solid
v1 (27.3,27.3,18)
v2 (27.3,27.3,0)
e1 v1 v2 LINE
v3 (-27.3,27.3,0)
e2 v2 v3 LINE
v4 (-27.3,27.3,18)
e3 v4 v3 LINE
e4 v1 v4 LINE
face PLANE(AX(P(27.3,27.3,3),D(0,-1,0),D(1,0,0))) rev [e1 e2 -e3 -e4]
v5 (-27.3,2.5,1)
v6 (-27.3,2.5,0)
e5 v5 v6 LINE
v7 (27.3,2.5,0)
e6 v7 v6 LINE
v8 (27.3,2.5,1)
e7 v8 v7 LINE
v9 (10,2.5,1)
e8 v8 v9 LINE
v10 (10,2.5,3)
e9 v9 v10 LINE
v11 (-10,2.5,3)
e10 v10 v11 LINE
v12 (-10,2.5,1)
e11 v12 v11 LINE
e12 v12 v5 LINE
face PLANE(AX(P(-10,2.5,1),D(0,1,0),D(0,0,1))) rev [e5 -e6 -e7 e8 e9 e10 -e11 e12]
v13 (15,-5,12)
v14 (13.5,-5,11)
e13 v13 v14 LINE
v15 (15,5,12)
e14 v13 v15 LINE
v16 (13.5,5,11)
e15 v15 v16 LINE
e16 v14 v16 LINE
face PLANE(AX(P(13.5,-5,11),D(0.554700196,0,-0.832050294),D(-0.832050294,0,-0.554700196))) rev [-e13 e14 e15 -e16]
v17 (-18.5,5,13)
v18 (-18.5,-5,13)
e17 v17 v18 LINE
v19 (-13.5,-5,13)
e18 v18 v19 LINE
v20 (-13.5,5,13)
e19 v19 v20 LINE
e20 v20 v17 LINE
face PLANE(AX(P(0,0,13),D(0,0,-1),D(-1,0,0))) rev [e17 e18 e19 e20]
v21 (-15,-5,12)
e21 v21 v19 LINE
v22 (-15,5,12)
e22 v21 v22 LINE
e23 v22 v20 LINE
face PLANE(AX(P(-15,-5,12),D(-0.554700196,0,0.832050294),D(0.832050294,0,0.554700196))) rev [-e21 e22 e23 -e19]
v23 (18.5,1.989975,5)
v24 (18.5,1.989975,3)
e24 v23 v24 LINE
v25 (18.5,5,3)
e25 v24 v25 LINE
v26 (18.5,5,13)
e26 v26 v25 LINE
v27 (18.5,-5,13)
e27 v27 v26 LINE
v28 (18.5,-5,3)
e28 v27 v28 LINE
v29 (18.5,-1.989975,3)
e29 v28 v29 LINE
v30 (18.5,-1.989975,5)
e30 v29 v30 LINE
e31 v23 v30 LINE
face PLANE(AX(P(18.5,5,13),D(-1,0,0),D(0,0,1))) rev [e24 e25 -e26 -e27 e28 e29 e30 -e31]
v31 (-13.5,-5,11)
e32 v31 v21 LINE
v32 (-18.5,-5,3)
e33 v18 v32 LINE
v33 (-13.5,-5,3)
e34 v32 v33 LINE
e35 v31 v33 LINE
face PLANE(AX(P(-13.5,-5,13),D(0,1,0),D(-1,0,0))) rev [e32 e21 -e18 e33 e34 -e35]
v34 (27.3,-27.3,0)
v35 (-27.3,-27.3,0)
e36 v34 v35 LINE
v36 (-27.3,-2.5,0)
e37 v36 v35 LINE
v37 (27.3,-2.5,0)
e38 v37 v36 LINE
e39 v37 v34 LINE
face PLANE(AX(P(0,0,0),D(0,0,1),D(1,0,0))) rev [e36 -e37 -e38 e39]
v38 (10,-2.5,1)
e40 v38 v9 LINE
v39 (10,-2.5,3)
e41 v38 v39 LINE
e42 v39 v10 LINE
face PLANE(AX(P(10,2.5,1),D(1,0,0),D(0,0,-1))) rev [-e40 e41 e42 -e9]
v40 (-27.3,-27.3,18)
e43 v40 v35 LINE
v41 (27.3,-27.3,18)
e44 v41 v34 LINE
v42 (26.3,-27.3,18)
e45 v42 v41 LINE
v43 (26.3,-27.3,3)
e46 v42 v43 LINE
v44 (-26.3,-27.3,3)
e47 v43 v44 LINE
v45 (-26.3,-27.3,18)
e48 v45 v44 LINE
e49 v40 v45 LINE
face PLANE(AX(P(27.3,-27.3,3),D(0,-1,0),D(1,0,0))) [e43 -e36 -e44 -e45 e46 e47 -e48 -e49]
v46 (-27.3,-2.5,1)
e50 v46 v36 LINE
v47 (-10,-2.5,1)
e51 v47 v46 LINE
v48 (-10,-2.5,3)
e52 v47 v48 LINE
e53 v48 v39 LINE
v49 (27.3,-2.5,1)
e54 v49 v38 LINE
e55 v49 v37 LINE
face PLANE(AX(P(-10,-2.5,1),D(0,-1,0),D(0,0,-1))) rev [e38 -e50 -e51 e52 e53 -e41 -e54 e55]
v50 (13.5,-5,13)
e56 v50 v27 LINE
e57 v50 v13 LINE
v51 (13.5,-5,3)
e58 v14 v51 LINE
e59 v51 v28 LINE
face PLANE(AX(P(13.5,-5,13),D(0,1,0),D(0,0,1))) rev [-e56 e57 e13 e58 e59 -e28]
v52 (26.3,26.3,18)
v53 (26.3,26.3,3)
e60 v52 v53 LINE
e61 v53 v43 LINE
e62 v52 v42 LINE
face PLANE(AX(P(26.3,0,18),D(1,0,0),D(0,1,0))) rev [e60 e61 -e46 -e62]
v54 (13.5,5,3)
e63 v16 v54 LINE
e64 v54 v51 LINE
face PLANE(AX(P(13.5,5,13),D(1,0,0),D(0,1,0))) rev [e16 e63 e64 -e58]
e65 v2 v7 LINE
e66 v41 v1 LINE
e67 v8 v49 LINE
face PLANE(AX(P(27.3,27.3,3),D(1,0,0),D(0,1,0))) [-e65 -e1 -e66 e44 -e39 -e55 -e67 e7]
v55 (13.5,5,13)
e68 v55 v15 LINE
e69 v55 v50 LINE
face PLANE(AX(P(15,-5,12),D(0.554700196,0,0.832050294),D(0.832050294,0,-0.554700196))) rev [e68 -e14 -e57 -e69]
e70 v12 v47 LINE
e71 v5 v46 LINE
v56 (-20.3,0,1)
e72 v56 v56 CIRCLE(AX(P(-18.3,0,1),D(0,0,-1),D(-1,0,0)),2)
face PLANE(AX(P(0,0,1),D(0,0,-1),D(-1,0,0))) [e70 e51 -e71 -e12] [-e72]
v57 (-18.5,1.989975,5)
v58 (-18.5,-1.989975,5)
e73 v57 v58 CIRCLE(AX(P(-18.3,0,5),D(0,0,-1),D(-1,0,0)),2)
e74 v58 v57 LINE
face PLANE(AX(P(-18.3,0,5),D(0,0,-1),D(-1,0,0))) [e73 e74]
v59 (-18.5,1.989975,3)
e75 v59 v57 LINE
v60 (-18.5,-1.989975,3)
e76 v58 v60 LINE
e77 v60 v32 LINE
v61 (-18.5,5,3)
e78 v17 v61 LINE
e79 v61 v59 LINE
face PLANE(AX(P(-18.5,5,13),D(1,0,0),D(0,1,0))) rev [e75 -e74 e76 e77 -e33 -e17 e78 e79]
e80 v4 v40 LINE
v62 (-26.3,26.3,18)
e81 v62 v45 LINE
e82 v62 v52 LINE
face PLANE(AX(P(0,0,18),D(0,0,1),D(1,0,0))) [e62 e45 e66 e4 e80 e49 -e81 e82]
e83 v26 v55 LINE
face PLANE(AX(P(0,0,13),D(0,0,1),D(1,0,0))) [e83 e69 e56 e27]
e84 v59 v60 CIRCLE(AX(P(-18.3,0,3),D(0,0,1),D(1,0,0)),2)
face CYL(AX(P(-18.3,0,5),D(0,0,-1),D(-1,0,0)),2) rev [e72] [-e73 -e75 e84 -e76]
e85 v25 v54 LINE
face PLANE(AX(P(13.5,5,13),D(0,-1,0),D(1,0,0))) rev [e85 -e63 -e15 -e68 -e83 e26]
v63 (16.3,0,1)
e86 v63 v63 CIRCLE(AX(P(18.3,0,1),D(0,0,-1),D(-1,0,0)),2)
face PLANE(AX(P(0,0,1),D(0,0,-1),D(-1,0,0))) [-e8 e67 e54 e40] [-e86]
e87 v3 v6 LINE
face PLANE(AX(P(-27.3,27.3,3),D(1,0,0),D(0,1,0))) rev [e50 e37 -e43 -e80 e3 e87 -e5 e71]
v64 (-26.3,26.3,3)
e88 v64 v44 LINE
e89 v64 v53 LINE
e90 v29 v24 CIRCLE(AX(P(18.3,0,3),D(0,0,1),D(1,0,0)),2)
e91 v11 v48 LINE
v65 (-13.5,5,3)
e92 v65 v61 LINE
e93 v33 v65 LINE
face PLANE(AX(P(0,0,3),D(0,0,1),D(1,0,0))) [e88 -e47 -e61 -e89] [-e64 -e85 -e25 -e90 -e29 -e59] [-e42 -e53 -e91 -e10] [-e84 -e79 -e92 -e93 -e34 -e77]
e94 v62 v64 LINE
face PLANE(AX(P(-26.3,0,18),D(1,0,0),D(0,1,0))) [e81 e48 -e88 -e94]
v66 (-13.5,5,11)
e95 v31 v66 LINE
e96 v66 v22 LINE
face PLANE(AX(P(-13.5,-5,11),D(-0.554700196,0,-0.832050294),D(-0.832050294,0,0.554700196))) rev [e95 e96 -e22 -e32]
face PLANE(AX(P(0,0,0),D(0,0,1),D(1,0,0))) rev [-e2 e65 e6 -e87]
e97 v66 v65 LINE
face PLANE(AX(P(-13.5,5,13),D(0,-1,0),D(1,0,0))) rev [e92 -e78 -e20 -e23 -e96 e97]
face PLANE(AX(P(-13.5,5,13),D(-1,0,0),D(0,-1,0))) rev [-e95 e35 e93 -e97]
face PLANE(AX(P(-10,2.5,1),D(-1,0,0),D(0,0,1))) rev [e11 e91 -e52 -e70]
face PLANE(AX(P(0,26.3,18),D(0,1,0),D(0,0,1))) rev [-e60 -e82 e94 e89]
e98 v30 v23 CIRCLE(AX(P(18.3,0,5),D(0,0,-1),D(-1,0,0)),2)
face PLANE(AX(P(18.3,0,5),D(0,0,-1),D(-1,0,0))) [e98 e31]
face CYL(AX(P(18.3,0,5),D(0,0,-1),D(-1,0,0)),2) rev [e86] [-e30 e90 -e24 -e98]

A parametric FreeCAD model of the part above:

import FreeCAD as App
import Part
import Sketcher
from FreeCAD import Vector
Q = App.Units.Quantity


def add_polygon(sketch, points):
    """Adds a closed chain of lines whose ends are joined by coincident constraints."""
    first, n = sketch.GeometryCount, len(points)
    for a, b in zip(points, points[1:] + points[:1]):
        sketch.addGeometry(Part.LineSegment(App.Vector(*a, 0), App.Vector(*b, 0)), False)
    for i in range(n):
        sketch.addConstraint(Sketcher.Constraint("Coincident", first + i, 2, first + (i + 1) % n, 1))

doc = App.newDocument("Part")
body = doc.addObject("PartDesign::Body", "Body")

# Sketch on XY plane
sketch1 = body.newObject("Sketcher::SketchObject", "Sketch")
sketch1.AttachmentSupport = (doc.getObject("XY_Plane"), [""])
sketch1.MapMode = "FlatFace"
add_polygon(sketch1, [(-27, 27), (-27, -27), (27, -27), (27, 27)])  # lines 0-3
sketch1.addConstraint([
    Sketcher.Constraint("Vertical", 0),
    Sketcher.Constraint("Horizontal", 1),
    Sketcher.Constraint("Vertical", 2),
    Sketcher.Constraint("Horizontal", 3),
    Sketcher.Constraint("Symmetric", 0, 2, 2, 2, -1, 1),
    Sketcher.Constraint("Equal", 3, 0),
    Sketcher.Constraint("DistanceX", 1, 1, 1, 2, Q("54.6 mm")),
])
pad1 = body.newObject("PartDesign::Pad", "Pad")
pad1.Profile = sketch1
pad1.Length = 3

# Sketch on XY plane
sketch2 = body.newObject("Sketcher::SketchObject", "Sketch001")
sketch2.AttachmentSupport = (doc.getObject("XY_Plane"), [""])
sketch2.MapMode = "FlatFace"
sketch2.AttachmentOffset = App.Placement(Vector(0, 0, 3), App.Rotation())
add_polygon(sketch2, [(-10, 2), (-10, -2), (10, -2), (10, 2)])  # lines 0-3
sketch2.addConstraint([
    Sketcher.Constraint("Vertical", 0),
    Sketcher.Constraint("Horizontal", 1),
    Sketcher.Constraint("Vertical", 2),
    Sketcher.Constraint("Horizontal", 3),
    Sketcher.Constraint("Symmetric", 0, 2, 2, 2, -1, 1),
    Sketcher.Constraint("DistanceX", 1, 1, 1, 2, Q("20 mm")),
    Sketcher.Constraint("DistanceY", 0, 2, 0, 1, Q("5 mm")),
])
pocket1 = body.newObject("PartDesign::Pocket", "Pocket")
pocket1.Profile = sketch2
pocket1.Length = 2

# Sketch on XY plane
sketch3 = body.newObject("Sketcher::SketchObject", "Sketch002")
sketch3.AttachmentSupport = (doc.getObject("XY_Plane"), [""])
sketch3.MapMode = "FlatFace"
add_polygon(sketch3, [(27, 2), (27, -2), (-27, -2), (-27, 2)])  # lines 0-3
sketch3.addConstraint([
    Sketcher.Constraint("Vertical", 0),
    Sketcher.Constraint("Horizontal", 1),
    Sketcher.Constraint("Vertical", 2),
    Sketcher.Constraint("Horizontal", 3),
    Sketcher.Constraint("Symmetric", 0, 2, 2, 2, -1, 1),
    Sketcher.Constraint("DistanceY", 0, 2, 0, 1, Q("5 mm")),
    Sketcher.Constraint("DistanceX", 1, 2, 1, 1, Q("54.6 mm")),
])
pocket2 = body.newObject("PartDesign::Pocket", "Pocket001")
pocket2.Profile = sketch3
pocket2.Length = 1
pocket2.Reversed = True

# Sketch on XY plane
sketch4 = body.newObject("Sketcher::SketchObject", "Sketch003")
sketch4.AttachmentSupport = (doc.getObject("XY_Plane"), [""])
sketch4.MapMode = "FlatFace"
sketch4.AttachmentOffset = App.Placement(Vector(0, 0, 3), App.Rotation())
add_polygon(sketch4, [(-18, 5), (-18, -5), (-14, -5), (-14, 5)])  # lines 0-3
add_polygon(sketch4, [(14, 5), (14, -5), (18, -5), (18, 5)])  # lines 4-7
sketch4.addConstraint([
    Sketcher.Constraint("Vertical", 0),
    Sketcher.Constraint("Horizontal", 1),
    Sketcher.Constraint("Vertical", 2),
    Sketcher.Constraint("Horizontal", 3),
    Sketcher.Constraint("Vertical", 4),
    Sketcher.Constraint("Horizontal", 5),
    Sketcher.Constraint("Vertical", 6),
    Sketcher.Constraint("Horizontal", 7),
    Sketcher.Constraint("Symmetric", 2, 2, 4, 2, -1, 1),
    Sketcher.Constraint("Symmetric", 0, 2, 6, 2, -1, 1),
    Sketcher.Constraint("Horizontal", 1, 2, 4, 2),
    Sketcher.Constraint("DistanceX", 1, 1, 1, 2, Q("5 mm")),
    Sketcher.Constraint("DistanceY", 0, 2, 0, 1, Q("10 mm")),
    Sketcher.Constraint("DistanceX", 1, 2, 4, 2, Q("27 mm")),
])
pad2 = body.newObject("PartDesign::Pad", "Pad001")
pad2.Profile = sketch4
pad2.Length = 10

# Sketch on XZ plane
sketch5 = body.newObject("Sketcher::SketchObject", "Sketch004")
sketch5.AttachmentSupport = (doc.getObject("XZ_Plane"), [""])
sketch5.MapMode = "FlatFace"
sketch5.AttachmentOffset = App.Placement(Vector(0, 0, -5), App.Rotation())
add_polygon(sketch5, [(-13.5, 13), (-13.5, 11), (-15, 12)])  # lines 0-2
add_polygon(sketch5, [(13.5, 11), (13.5, 13), (15, 12)])  # lines 3-5
sketch5.addConstraint([
    Sketcher.Constraint("Vertical", 0),
    Sketcher.Constraint("Vertical", 3),
    Sketcher.Constraint("Symmetric", 2, 2, 3, 2, -2),
    Sketcher.Constraint("Symmetric", 1, 2, 4, 2, -2),
    Sketcher.Constraint("Parallel", 1, 4),
    Sketcher.Constraint("Parallel", 2, 5),
    Sketcher.Constraint("DistanceY", 0, 2, 0, 1, Q("2 mm")),
    Sketcher.Constraint("DistanceY", -1, 1, 0, 2, Q("11 mm")),
    Sketcher.Constraint("DistanceX", 1, 2, -1, 1, Q("15 mm")),
    Sketcher.Constraint("DistanceX", 2, 2, 3, 2, Q("27 mm")),
])
pocket3 = body.newObject("PartDesign::Pocket", "Pocket002")
pocket3.Profile = sketch5
pocket3.Length = 10
pocket3.Reversed = True

# Sketch on XY plane
sketch6 = body.newObject("Sketcher::SketchObject", "Sketch005")
sketch6.AttachmentSupport = (doc.getObject("XY_Plane"), [""])
sketch6.MapMode = "FlatFace"
sketch6.AttachmentOffset = App.Placement(Vector(0, 0, 3), App.Rotation())
add_polygon(sketch6, [(27.3, 27.3), (-27.3, 27.3), (-27.3, -27.3), (-26.3, -27.3), (-26.3, 26.3), (26.3, 26.3), (26.3, -27.3), (27.3, -27.3)])  # lines 0-7
sketch6.addConstraint([
    Sketcher.Constraint("Horizontal", 0),
    Sketcher.Constraint("Vertical", 1),
    Sketcher.Constraint("Horizontal", 2),
    Sketcher.Constraint("Vertical", 3),
    Sketcher.Constraint("Horizontal", 4),
    Sketcher.Constraint("Vertical", 5),
    Sketcher.Constraint("Horizontal", 6),
    Sketcher.Constraint("Vertical", 7),
    Sketcher.Constraint("Symmetric", 0, 2, 6, 2, -1, 1),
    Sketcher.Constraint("Symmetric", 2, 2, 5, 2, -2),
    Sketcher.Constraint("Equal", 0, 1),
    Sketcher.Constraint("DistanceX", 2, 1, 2, 2, Q("1 mm")),
    Sketcher.Constraint("DistanceX", 0, 2, 0, 1, Q("54.6 mm")),
    Sketcher.Constraint("DistanceY", 3, 1, 3, 2, Q("53.6 mm")),
])
pad3 = body.newObject("PartDesign::Pad", "Pad002")
pad3.Profile = sketch6
pad3.Length = 15

# Sketch on XY plane
sketch7 = body.newObject("Sketcher::SketchObject", "Sketch006")
sketch7.AttachmentSupport = (doc.getObject("XY_Plane"), [""])
sketch7.MapMode = "FlatFace"
sketch7.AttachmentOffset = App.Placement(Vector(0, 0, 1), App.Rotation())
sketch7.addGeometry([
    Part.Circle(Vector(18.3, 0, 0), Vector(0, 0, 1), 2),
    Part.Circle(Vector(-18.3, 0, 0), Vector(0, 0, 1), 2),
], False)
sketch7.addConstraint([
    Sketcher.Constraint("Equal", 0, 1),
    Sketcher.Constraint("Symmetric", 0, 3, 1, 3, -1, 1),
    Sketcher.Constraint("PointOnObject", 0, 3, -1),
    Sketcher.Constraint("Diameter", 0, Q("4 mm")),
    Sketcher.Constraint("DistanceX", -1, 1, 0, 3, Q("18.3 mm")),
])
pocket4 = body.newObject("PartDesign::Pocket", "Pocket003")
pocket4.Profile = sketch7
pocket4.Length = 4
pocket4.Reversed = True

doc.recompute()
